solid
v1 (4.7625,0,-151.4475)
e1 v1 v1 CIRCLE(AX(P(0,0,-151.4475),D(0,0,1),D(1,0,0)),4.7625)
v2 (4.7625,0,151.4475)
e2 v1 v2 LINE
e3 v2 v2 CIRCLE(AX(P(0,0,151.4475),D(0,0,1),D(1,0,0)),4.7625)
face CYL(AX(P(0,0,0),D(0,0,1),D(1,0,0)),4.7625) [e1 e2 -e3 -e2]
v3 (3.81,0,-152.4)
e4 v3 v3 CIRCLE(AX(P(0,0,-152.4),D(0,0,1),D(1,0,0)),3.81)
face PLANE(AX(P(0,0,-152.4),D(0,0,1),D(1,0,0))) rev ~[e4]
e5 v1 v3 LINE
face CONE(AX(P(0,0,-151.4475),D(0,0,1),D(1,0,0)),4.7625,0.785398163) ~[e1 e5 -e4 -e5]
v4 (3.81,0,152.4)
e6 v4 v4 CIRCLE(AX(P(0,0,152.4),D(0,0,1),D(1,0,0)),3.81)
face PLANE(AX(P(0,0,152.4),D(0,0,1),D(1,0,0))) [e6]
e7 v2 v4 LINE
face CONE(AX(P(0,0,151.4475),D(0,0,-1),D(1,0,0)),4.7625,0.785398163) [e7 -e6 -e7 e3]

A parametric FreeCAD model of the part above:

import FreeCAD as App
import Part
import Sketcher

V = App.Vector
Q = App.Units.Quantity


def edges_at(feature, points):
    """Names of the edges that pass closest to the given points."""
    edges = feature.Shape.Edges
    near = lambda p: min(range(len(edges)), key=lambda i: edges[i].distToShape(Part.Vertex(*p))[0])
    return sorted({f"Edge{near(p) + 1}" for p in points})

doc = App.newDocument("Part")
body = doc.addObject("PartDesign::Body", "Body")

# Sketch on XY plane
sketch1 = body.newObject("Sketcher::SketchObject", "Sketch")
sketch1.AttachmentSupport = (doc.getObject("XY_Plane"), [""])
sketch1.MapMode = "FlatFace"
sketch1.addGeometry(Part.Circle(V(0, 0, 0), V(0, 0, 1), 4.8), False)
sketch1.addConstraint([
    Sketcher.Constraint("Coincident", 0, 3, -1, 1),
    Sketcher.Constraint("Diameter", 0, Q("0.375 in")),
])
pad1 = body.newObject("PartDesign::Pad", "Pad")
pad1.Profile = sketch1
pad1.Length = Q("12 in")
pad1.Midplane = True
doc.recompute()

chamfer = body.newObject("PartDesign::Chamfer", "Chamfer")
chamfer.Base = (pad1, edges_at(pad1, [(-4.763, 0, -152.4), (-4.763, 0, 152.4)]))
chamfer.Size = Q("0.0375 in")

doc.recompute()
